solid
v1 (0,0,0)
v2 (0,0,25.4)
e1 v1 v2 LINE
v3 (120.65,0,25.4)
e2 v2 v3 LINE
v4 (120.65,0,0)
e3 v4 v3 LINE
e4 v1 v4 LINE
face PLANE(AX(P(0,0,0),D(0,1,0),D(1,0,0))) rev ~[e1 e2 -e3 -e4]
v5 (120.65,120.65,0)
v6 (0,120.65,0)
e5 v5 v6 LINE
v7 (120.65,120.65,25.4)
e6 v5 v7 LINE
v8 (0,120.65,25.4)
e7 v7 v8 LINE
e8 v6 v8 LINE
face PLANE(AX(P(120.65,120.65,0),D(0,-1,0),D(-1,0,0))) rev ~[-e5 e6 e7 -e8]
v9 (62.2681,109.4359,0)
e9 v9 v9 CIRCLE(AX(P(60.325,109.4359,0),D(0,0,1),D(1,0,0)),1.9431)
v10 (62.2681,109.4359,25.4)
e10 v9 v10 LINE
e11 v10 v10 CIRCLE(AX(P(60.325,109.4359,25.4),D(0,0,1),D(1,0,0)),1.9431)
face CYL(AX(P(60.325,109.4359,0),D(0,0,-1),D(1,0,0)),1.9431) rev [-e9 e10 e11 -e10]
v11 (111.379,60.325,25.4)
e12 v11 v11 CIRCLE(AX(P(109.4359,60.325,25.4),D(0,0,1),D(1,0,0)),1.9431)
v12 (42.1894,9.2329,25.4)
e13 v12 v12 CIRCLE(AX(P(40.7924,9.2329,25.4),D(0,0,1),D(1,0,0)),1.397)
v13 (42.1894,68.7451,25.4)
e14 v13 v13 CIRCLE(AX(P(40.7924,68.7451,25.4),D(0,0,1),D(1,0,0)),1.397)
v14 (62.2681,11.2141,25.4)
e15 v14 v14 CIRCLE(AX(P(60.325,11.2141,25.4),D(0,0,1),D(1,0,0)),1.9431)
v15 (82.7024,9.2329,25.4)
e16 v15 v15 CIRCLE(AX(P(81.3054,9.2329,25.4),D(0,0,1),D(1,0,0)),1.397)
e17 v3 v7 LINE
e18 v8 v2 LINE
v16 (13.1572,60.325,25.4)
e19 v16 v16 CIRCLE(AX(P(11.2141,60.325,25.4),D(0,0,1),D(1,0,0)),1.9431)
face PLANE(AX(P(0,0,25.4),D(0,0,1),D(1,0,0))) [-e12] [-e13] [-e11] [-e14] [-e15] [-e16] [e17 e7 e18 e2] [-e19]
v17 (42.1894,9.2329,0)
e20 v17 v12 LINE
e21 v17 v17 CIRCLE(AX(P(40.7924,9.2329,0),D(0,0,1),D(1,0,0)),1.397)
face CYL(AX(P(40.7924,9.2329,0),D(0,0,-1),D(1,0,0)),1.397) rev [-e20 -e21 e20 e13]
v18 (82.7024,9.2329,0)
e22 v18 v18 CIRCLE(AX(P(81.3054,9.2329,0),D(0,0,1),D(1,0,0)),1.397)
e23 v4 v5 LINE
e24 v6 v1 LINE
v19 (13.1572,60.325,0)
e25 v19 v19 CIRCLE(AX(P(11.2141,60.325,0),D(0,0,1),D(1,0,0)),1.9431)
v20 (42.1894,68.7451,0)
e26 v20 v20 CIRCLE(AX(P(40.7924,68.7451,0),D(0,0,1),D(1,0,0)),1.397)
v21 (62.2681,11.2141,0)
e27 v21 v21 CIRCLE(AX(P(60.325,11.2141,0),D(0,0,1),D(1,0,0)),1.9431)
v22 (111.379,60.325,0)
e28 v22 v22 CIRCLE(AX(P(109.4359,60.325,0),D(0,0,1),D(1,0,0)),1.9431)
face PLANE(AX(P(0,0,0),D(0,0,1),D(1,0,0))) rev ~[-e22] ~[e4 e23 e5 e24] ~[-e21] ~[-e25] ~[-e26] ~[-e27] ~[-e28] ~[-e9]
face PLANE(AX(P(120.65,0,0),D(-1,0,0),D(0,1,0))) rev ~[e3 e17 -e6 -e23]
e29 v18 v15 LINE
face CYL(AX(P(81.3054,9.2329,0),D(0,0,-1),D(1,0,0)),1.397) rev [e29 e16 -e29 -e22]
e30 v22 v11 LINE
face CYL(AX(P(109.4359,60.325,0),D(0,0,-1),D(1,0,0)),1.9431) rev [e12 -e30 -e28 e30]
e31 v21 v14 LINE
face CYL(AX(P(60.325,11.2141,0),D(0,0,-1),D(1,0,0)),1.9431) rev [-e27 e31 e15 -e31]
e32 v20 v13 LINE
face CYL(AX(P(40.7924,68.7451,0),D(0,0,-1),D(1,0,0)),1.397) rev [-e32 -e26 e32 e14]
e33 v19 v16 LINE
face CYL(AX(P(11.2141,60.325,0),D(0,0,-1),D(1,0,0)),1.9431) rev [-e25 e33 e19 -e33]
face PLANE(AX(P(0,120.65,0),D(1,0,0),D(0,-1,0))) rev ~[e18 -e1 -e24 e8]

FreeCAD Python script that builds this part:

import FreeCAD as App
import Part
import Sketcher

V = App.Vector
Q = App.Units.Quantity

doc = App.newDocument("Part")
body = doc.addObject("PartDesign::Body", "Body")

# Sketch on XY plane
sketch1 = body.newObject("Sketcher::SketchObject", "Sketch")
sketch1.AttachmentSupport = (doc.getObject("XY_Plane"), [""])
sketch1.MapMode = "FlatFace"
sketch1.addGeometry(Part.LineSegment(V(0, 120.7, 0), V(0, 0, 0)), False)
sketch1.addGeometry(Part.LineSegment(V(0, 0, 0), V(120.7, 0, 0)), False)
sketch1.addGeometry(Part.LineSegment(V(120.7, 0, 0), V(120.7, 120.7, 0)), False)
sketch1.addGeometry(Part.LineSegment(V(120.7, 120.7, 0), V(0, 120.7, 0)), False)
sketch1.addGeometry(Part.Circle(V(40.8, 9.2, 0), V(0, 0, 1), 1.4), False)
sketch1.addGeometry(Part.Circle(V(60.3, 11.2, 0), V(0, 0, 1), 1.9), False)
sketch1.addGeometry(Part.Circle(V(81.3, 9.2, 0), V(0, 0, 1), 1.4), False)
sketch1.addGeometry(Part.Circle(V(11.2, 60.3, 0), V(0, 0, 1), 1.9), False)
sketch1.addGeometry(Part.Circle(V(40.8, 68.7, 0), V(0, 0, 1), 1.4), False)
sketch1.addGeometry(Part.Circle(V(109.4, 60.3, 0), V(0, 0, 1), 1.9), False)
sketch1.addGeometry(Part.Circle(V(60.3, 109.4, 0), V(0, 0, 1), 1.9), False)
sketch1.addConstraint(Sketcher.Constraint("Coincident", 0, 2, 1, 1))
sketch1.addConstraint(Sketcher.Constraint("Coincident", 1, 2, 2, 1))
sketch1.addConstraint(Sketcher.Constraint("Coincident", 2, 2, 3, 1))
sketch1.addConstraint(Sketcher.Constraint("Coincident", 3, 2, 0, 1))
sketch1.addConstraint(Sketcher.Constraint("Vertical", 0))
sketch1.addConstraint(Sketcher.Constraint("Horizontal", 1))
sketch1.addConstraint(Sketcher.Constraint("Vertical", 2))
sketch1.addConstraint(Sketcher.Constraint("Horizontal", 3))
sketch1.addConstraint(Sketcher.Constraint("Coincident", 0, 2, -1, 1))
sketch1.addConstraint(Sketcher.Constraint("Equal", 4, 6))
sketch1.addConstraint(Sketcher.Constraint("Equal", 5, 7))
sketch1.addConstraint(Sketcher.Constraint("Equal", 6, 8))
sketch1.addConstraint(Sketcher.Constraint("Equal", 7, 9))
sketch1.addConstraint(Sketcher.Constraint("Equal", 9, 10))
sketch1.addConstraint(Sketcher.Constraint("Horizontal", 4, 3, 6, 3))
sketch1.addConstraint(Sketcher.Constraint("Horizontal", 7, 3, 9, 3))
sketch1.addConstraint(Sketcher.Constraint("Vertical", 4, 3, 8, 3))
sketch1.addConstraint(Sketcher.Constraint("Vertical", 5, 3, 10, 3))
sketch1.addConstraint(Sketcher.Constraint("Equal", 3, 0))
sketch1.addConstraint(Sketcher.Constraint("Diameter", 4, Q("0.11 in")))
sketch1.addConstraint(Sketcher.Constraint("Diameter", 5, Q("0.153 in")))
sketch1.addConstraint(Sketcher.Constraint("DistanceX", 1, 1, 1, 2, Q("4.75 in")))
sketch1.addConstraint(Sketcher.Constraint("DistanceX", -1, 1, 4, 3, Q("1.606 in")))
sketch1.addConstraint(Sketcher.Constraint("DistanceX", -1, 1, 5, 3, Q("2.375 in")))
sketch1.addConstraint(Sketcher.Constraint("DistanceX", -1, 1, 6, 3, Q("3.201 in")))
sketch1.addConstraint(Sketcher.Constraint("DistanceY", -1, 1, 7, 3, Q("2.375 in")))
sketch1.addConstraint(Sketcher.Constraint("DistanceY", 4, 3, 5, 3, Q("0.078 in")))
sketch1.addConstraint(Sketcher.Constraint("DistanceY", 4, 3, 8, 3, Q("2.343 in")))
sketch1.addConstraint(Sketcher.Constraint("DistanceX", 7, 3, 9, 3, Q("3.867 in")))
sketch1.addConstraint(Sketcher.Constraint("DistanceY", 8, 3, 10, 3, Q("1.602 in")))
sketch1.addConstraint(Sketcher.Constraint("DistanceY", -1, 1, 4, 3, Q("0.3635 in")))
sketch1.addConstraint(Sketcher.Constraint("DistanceX", -1, 1, 7, 3, Q("0.4415 in")))
pad1 = body.newObject("PartDesign::Pad", "Pad")
pad1.Profile = sketch1
pad1.Length = Q("1 in")

doc.recompute()
